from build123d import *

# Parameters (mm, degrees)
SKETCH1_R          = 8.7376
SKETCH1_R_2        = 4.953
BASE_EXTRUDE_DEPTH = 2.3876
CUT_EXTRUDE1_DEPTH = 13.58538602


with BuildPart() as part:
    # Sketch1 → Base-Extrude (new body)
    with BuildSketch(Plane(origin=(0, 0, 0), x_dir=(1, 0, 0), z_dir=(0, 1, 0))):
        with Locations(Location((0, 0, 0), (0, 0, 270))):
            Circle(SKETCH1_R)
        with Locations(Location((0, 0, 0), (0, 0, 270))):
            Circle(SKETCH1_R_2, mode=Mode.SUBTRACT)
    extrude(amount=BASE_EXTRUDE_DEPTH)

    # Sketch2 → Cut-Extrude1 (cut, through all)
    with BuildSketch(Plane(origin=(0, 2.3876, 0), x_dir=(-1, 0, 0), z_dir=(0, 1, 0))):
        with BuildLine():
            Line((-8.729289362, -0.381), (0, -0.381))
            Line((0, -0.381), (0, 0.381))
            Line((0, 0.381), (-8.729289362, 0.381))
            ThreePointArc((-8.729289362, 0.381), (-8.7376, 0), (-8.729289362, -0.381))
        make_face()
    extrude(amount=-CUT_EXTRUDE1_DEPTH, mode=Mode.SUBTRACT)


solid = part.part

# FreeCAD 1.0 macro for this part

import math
import FreeCAD as App
import Part
import Sketcher
from FreeCAD import Vector
Q = App.Units.Quantity

doc = App.newDocument("Part")
params = doc.addObject("Spreadsheet::Sheet", "Params")
for row, (alias, value) in enumerate([
    ("sketch1_diameter", "0.39 in"),
    ("sketch1_diameter2", "0.688 in"),
    ("pad1_length", "0.094 in"),
    ("sketch2_radius", "0.344 in"),
    ("sketch2_height", "0.03 in"),
], start=1):
    params.set(f"A{row}", alias)
    params.set(f"B{row}", "=" + value)
    params.setAlias(f"B{row}", alias)

body = doc.addObject("PartDesign::Body", "Body")

# Sketch on XZ plane
sketch1 = body.newObject("Sketcher::SketchObject", "Sketch")
sketch1.AttachmentSupport = (doc.getObject("XZ_Plane"), [""])
sketch1.MapMode = "FlatFace"
sketch1.addGeometry(Part.Circle(Vector(0, 0, 0), Vector(0, 0, 1), 8.7), False)
sketch1.addGeometry(Part.Circle(Vector(0, 0, 0), Vector(0, 0, 1), 5), False)
sketch1.addConstraint(Sketcher.Constraint("Coincident", 0, 3, -1, 1))
sketch1.addConstraint(Sketcher.Constraint("Coincident", 1, 3, -1, 1))
sketch1.addConstraint(Sketcher.Constraint("Diameter", 1, Q("0.39 in")))
sketch1.addConstraint(Sketcher.Constraint("Diameter", 0, Q("0.688 in")))
sketch1.setExpression("Constraints[2]", "Params.sketch1_diameter")
sketch1.setExpression("Constraints[3]", "Params.sketch1_diameter2")
pad1 = body.newObject("PartDesign::Pad", "Pad")
pad1.Profile = sketch1
pad1.setExpression("Length", "Params.pad1_length")
pad1.Reversed = True

# Sketch on XZ plane
sketch2 = body.newObject("Sketcher::SketchObject", "Sketch001")
sketch2.AttachmentSupport = (doc.getObject("XZ_Plane"), [""])
sketch2.MapMode = "FlatFace"
sketch2.AttachmentOffset = App.Placement(Vector(0, 0, -0.094 * 25.4), App.Rotation())
sketch2.addGeometry(Part.LineSegment(Vector(8.7, -0.4, 0), Vector(0, -0.4, 0)), False)
sketch2.addGeometry(Part.LineSegment(Vector(0, -0.4, 0), Vector(0, 0.4, 0)), False)
sketch2.addGeometry(Part.LineSegment(Vector(0, 0.4, 0), Vector(8.7, 0.4, 0)), False)
sketch2.addGeometry(Part.ArcOfCircle(Part.Circle(Vector(0, 0, 0), Vector(0, 0, 1), 8.7), math.radians(-2.5), math.radians(2.5)), False)
sketch2.addConstraint(Sketcher.Constraint("Coincident", 0, 2, 1, 1))
sketch2.addConstraint(Sketcher.Constraint("Coincident", 1, 2, 2, 1))
sketch2.addConstraint(Sketcher.Constraint("Coincident", 2, 2, 3, 2))
sketch2.addConstraint(Sketcher.Constraint("Coincident", 3, 1, 0, 1))
sketch2.addConstraint(Sketcher.Constraint("Horizontal", 0))
sketch2.addConstraint(Sketcher.Constraint("Vertical", 1))
sketch2.addConstraint(Sketcher.Constraint("Horizontal", 2))
sketch2.addConstraint(Sketcher.Constraint("Coincident", 3, 3, -1, 1))
sketch2.addConstraint(Sketcher.Constraint("Symmetric", 0, 2, 1, 2, -1, 1))
sketch2.addConstraint(Sketcher.Constraint("Radius", 3, Q("0.344 in")))
sketch2.addConstraint(Sketcher.Constraint("DistanceY", 1, 1, 1, 2, Q("0.03 in")))
sketch2.setExpression("Constraints[9]", "Params.sketch2_radius")
sketch2.setExpression("Constraints[10]", "Params.sketch2_height")
pocket1 = body.newObject("PartDesign::Pocket", "Pocket")
pocket1.Profile = sketch2
pocket1.Type = "ThroughAll"
pocket1.Reversed = True

doc.recompute()
